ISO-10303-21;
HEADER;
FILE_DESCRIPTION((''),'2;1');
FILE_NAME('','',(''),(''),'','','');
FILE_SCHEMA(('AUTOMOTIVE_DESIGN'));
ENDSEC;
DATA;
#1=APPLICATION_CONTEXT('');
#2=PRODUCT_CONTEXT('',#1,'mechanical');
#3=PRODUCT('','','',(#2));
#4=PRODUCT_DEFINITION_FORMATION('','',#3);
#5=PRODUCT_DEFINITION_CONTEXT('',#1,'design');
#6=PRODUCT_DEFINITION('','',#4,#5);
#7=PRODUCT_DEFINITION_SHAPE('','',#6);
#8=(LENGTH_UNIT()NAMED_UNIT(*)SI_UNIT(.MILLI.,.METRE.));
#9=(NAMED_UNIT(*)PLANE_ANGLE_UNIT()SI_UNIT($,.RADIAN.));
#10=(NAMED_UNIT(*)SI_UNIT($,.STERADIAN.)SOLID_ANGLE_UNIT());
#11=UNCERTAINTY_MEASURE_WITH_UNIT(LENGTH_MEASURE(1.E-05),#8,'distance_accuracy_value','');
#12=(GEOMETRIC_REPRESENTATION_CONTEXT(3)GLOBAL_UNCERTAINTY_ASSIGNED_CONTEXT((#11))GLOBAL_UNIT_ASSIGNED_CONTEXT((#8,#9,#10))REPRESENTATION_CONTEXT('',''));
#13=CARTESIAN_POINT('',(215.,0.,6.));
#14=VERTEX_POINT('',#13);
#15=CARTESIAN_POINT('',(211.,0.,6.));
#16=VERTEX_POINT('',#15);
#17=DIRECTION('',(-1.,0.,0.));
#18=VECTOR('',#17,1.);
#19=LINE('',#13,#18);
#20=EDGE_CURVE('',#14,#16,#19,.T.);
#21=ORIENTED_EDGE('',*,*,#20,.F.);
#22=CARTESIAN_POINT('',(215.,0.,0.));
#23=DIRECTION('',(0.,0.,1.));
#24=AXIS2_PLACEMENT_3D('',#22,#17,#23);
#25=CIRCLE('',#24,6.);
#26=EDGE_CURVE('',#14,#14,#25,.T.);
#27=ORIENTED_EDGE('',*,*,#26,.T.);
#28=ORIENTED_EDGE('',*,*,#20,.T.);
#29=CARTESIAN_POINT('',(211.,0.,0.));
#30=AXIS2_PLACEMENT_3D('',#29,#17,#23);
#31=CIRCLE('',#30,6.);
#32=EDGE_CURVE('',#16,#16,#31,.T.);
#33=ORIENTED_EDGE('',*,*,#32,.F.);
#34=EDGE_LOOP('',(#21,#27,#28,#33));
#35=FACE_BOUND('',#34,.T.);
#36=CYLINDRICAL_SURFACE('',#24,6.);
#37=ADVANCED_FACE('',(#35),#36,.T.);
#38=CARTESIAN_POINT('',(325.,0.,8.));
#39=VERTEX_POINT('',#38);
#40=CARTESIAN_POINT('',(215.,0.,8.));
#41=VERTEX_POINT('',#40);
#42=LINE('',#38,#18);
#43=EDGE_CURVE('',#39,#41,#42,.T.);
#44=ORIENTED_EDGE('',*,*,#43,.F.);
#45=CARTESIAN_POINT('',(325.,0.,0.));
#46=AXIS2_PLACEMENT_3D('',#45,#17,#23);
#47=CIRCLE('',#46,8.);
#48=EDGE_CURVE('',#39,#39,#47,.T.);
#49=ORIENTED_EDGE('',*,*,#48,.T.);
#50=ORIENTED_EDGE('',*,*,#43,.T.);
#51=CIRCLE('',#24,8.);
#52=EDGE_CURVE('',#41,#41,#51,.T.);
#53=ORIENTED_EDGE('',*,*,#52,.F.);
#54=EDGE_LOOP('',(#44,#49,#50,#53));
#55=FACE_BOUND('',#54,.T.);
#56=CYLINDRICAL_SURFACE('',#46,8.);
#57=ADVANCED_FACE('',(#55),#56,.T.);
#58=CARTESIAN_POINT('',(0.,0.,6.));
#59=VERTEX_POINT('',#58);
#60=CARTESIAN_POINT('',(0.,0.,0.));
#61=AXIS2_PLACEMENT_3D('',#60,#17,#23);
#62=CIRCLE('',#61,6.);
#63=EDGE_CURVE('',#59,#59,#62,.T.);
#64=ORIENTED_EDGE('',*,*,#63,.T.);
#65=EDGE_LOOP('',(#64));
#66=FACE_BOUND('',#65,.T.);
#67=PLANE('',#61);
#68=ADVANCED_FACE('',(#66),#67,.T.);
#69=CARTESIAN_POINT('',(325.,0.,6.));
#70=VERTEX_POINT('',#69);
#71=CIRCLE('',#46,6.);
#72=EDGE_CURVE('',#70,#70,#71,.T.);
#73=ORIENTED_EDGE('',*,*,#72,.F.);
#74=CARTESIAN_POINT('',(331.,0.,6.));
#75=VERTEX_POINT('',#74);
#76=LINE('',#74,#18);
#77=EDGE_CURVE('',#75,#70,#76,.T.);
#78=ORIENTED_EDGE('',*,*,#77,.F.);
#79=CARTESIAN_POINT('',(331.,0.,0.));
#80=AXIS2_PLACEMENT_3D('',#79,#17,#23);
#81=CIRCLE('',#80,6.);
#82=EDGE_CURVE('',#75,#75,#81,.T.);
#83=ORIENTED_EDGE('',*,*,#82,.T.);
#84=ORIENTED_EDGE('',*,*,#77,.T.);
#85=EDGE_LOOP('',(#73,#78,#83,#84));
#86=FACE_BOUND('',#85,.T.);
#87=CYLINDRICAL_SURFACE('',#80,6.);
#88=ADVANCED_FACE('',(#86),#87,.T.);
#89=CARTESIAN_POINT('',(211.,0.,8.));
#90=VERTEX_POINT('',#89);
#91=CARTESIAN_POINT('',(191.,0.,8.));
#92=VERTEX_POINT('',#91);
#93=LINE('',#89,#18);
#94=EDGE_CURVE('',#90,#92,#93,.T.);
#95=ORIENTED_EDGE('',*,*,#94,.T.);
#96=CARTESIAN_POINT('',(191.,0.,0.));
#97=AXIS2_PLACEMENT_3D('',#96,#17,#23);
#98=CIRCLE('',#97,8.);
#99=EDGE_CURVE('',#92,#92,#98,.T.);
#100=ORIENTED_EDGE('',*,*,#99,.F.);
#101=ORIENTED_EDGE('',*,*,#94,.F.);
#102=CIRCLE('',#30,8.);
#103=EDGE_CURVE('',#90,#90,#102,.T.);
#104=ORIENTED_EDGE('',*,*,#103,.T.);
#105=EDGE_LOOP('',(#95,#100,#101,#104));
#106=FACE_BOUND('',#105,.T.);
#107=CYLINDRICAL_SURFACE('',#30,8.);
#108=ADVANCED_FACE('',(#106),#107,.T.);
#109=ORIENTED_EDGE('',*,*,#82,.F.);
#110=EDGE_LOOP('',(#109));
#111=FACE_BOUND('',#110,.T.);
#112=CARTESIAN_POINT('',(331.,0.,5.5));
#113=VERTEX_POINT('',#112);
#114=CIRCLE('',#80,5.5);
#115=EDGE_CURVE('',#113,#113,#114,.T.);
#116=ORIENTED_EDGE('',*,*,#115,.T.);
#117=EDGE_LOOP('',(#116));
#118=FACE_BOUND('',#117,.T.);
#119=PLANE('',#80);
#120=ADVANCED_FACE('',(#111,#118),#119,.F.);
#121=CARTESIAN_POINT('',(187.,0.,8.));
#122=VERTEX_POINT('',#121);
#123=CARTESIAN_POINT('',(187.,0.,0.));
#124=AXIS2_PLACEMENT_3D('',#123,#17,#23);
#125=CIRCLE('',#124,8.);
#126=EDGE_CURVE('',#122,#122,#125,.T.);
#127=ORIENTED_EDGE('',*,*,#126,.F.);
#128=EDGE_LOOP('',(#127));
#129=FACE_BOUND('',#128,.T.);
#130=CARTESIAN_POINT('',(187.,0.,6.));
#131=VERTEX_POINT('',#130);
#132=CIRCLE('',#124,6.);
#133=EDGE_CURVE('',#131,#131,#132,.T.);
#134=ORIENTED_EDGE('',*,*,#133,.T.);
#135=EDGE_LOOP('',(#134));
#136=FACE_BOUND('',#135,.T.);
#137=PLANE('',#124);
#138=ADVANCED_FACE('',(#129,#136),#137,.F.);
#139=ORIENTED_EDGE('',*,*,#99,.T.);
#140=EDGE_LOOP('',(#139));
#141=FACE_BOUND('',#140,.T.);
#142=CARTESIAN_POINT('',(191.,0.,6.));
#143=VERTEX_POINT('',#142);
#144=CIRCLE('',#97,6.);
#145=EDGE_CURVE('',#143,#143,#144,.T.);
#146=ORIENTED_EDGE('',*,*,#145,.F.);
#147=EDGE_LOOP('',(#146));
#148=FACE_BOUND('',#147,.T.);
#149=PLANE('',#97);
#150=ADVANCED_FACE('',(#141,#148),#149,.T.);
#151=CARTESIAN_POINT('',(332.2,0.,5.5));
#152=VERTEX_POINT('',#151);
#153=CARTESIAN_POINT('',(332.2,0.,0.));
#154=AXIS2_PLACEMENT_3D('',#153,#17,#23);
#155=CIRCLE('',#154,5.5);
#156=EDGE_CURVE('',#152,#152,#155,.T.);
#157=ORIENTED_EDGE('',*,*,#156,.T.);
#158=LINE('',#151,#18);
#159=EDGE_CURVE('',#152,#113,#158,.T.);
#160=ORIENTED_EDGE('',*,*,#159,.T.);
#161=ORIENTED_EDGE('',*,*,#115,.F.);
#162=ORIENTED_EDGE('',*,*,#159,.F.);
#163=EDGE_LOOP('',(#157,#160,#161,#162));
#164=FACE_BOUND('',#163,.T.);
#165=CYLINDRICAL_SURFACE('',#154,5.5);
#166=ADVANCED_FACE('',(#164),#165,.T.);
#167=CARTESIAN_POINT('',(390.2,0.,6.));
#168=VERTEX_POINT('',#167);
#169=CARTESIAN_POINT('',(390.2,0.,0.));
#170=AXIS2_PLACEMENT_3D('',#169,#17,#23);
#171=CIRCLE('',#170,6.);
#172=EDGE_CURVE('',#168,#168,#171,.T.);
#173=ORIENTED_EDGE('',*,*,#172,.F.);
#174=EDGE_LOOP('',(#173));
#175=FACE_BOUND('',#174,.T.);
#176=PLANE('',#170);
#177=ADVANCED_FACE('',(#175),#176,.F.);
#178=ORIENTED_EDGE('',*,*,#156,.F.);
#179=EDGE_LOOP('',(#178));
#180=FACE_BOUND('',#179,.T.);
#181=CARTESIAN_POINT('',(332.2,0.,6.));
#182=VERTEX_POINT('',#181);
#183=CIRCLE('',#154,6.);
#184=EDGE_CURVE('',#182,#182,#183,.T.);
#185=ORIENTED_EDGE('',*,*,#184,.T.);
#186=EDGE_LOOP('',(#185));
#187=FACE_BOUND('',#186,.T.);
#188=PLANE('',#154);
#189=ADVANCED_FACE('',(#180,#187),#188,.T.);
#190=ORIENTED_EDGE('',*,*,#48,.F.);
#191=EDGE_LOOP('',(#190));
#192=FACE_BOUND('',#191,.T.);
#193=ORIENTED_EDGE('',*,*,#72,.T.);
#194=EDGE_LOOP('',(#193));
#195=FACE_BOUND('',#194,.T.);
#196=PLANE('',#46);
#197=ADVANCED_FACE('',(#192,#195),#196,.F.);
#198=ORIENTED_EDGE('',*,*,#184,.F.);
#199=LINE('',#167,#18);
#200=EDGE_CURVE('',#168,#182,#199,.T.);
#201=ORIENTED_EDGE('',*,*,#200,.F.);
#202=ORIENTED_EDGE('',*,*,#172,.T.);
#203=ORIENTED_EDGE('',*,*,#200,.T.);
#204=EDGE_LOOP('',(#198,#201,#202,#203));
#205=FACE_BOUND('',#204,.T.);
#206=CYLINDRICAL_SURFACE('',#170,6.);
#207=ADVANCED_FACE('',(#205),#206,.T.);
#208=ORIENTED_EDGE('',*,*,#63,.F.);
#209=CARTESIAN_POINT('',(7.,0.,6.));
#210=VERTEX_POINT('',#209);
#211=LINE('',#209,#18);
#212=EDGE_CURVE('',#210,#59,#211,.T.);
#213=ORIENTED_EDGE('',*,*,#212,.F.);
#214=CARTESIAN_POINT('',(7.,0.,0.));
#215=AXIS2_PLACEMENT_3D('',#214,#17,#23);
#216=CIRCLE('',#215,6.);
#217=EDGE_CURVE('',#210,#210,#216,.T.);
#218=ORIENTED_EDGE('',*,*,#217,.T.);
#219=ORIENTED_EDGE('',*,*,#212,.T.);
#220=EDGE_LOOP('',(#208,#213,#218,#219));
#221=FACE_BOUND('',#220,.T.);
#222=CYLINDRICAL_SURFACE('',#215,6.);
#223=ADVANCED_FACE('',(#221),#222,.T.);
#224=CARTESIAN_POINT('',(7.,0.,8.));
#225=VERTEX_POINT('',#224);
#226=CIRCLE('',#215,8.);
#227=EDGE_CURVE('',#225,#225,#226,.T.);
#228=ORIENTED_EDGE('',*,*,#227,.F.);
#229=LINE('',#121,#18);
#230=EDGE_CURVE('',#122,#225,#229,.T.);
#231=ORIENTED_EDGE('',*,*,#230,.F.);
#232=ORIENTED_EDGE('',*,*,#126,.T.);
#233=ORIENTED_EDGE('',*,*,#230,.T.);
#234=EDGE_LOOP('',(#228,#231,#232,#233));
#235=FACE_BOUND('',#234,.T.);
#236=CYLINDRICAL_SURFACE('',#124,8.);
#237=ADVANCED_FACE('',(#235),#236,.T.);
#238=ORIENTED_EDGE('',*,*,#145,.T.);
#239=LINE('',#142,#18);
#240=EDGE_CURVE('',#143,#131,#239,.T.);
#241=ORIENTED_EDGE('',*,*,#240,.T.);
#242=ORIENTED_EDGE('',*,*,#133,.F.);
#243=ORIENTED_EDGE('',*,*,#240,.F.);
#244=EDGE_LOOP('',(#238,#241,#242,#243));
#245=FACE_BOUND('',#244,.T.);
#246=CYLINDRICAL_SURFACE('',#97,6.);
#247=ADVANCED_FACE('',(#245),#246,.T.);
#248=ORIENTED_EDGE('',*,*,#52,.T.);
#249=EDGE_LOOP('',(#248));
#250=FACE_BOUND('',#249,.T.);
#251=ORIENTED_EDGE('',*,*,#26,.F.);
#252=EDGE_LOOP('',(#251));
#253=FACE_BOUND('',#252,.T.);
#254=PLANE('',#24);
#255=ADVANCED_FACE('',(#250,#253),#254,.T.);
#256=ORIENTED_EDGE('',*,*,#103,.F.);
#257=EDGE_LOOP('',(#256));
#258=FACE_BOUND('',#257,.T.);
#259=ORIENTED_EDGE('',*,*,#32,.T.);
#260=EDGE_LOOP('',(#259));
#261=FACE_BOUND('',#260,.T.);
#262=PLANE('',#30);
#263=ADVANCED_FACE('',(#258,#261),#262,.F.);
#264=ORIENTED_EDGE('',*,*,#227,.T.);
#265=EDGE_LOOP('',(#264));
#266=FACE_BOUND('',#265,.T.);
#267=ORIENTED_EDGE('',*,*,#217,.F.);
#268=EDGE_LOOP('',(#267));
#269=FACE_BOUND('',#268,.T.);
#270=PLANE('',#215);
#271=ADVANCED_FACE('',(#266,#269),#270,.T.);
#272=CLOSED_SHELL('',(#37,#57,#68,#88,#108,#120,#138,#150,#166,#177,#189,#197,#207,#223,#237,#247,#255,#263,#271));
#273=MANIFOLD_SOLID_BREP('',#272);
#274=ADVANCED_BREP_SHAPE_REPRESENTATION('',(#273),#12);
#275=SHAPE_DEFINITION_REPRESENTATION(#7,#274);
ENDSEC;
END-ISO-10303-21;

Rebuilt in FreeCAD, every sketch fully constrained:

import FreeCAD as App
import Part
import Sketcher

V = App.Vector
Q = App.Units.Quantity

doc = App.newDocument("Part")
params = doc.addObject("Spreadsheet::Sheet", "Params")
for row, (alias, value) in enumerate([
    ("sketch1_width", "58 mm"),
    ("sketch1_width2", "6 mm"),
    ("sketch1_width3", "110 mm"),
    ("sketch1_width4", "4 mm"),
    ("sketch1_width5", "20 mm"),
    ("revolution_angle", "360 deg"),
], start=1):
    params.set(f"A{row}", alias)
    params.set(f"B{row}", "=" + value)
    params.setAlias(f"B{row}", alias)

body = doc.addObject("PartDesign::Body", "Body")

sketch1 = doc.addObject("Sketcher::SketchObject", "Sketch")
body.addObject(sketch1)
sketch1.AttachmentSupport = (doc.XZ_Plane, [""])
sketch1.MapMode = "FlatFace"
sketch1.addGeometry(Part.LineSegment(V(0, 6, 0), V(0, 0, 0)), False)
sketch1.addGeometry(Part.LineSegment(V(0, 0, 0), V(390.2, 0, 0)), False)
sketch1.addGeometry(Part.LineSegment(V(390.2, 0, 0), V(390.2, 6, 0)), False)
sketch1.addGeometry(Part.LineSegment(V(390.2, 6, 0), V(332.2, 6, 0)), False)
sketch1.addGeometry(Part.LineSegment(V(332.2, 6, 0), V(332.2, 5.5, 0)), False)
sketch1.addGeometry(Part.LineSegment(V(332.2, 5.5, 0), V(331, 5.5, 0)), False)
sketch1.addGeometry(Part.LineSegment(V(331, 5.5, 0), V(331, 6, 0)), False)
sketch1.addGeometry(Part.LineSegment(V(331, 6, 0), V(325, 6, 0)), False)
sketch1.addGeometry(Part.LineSegment(V(325, 6, 0), V(325, 8, 0)), False)
sketch1.addGeometry(Part.LineSegment(V(325, 8, 0), V(215, 8, 0)), False)
sketch1.addGeometry(Part.LineSegment(V(215, 8, 0), V(215, 6, 0)), False)
sketch1.addGeometry(Part.LineSegment(V(215, 6, 0), V(211, 6, 0)), False)
sketch1.addGeometry(Part.LineSegment(V(211, 6, 0), V(211, 8, 0)), False)
sketch1.addGeometry(Part.LineSegment(V(211, 8, 0), V(191, 8, 0)), False)
sketch1.addGeometry(Part.LineSegment(V(191, 8, 0), V(191, 6, 0)), False)
sketch1.addGeometry(Part.LineSegment(V(191, 6, 0), V(187, 6, 0)), False)
sketch1.addGeometry(Part.LineSegment(V(187, 6, 0), V(187, 8, 0)), False)
sketch1.addGeometry(Part.LineSegment(V(187, 8, 0), V(7, 8, 0)), False)
sketch1.addGeometry(Part.LineSegment(V(7, 8, 0), V(7, 6, 0)), False)
sketch1.addGeometry(Part.LineSegment(V(7, 6, 0), V(0, 6, 0)), False)
sketch1.addConstraint(Sketcher.Constraint("Coincident", 0, 2, 1, 1))
sketch1.addConstraint(Sketcher.Constraint("Coincident", 1, 2, 2, 1))
sketch1.addConstraint(Sketcher.Constraint("Coincident", 2, 2, 3, 1))
sketch1.addConstraint(Sketcher.Constraint("Coincident", 3, 2, 4, 1))
sketch1.addConstraint(Sketcher.Constraint("Coincident", 4, 2, 5, 1))
sketch1.addConstraint(Sketcher.Constraint("Coincident", 5, 2, 6, 1))
sketch1.addConstraint(Sketcher.Constraint("Coincident", 6, 2, 7, 1))
sketch1.addConstraint(Sketcher.Constraint("Coincident", 7, 2, 8, 1))
sketch1.addConstraint(Sketcher.Constraint("Coincident", 8, 2, 9, 1))
sketch1.addConstraint(Sketcher.Constraint("Coincident", 9, 2, 10, 1))
sketch1.addConstraint(Sketcher.Constraint("Coincident", 10, 2, 11, 1))
sketch1.addConstraint(Sketcher.Constraint("Coincident", 11, 2, 12, 1))
sketch1.addConstraint(Sketcher.Constraint("Coincident", 12, 2, 13, 1))
sketch1.addConstraint(Sketcher.Constraint("Coincident", 13, 2, 14, 1))
sketch1.addConstraint(Sketcher.Constraint("Coincident", 14, 2, 15, 1))
sketch1.addConstraint(Sketcher.Constraint("Coincident", 15, 2, 16, 1))
sketch1.addConstraint(Sketcher.Constraint("Coincident", 16, 2, 17, 1))
sketch1.addConstraint(Sketcher.Constraint("Coincident", 17, 2, 18, 1))
sketch1.addConstraint(Sketcher.Constraint("Coincident", 18, 2, 19, 1))
sketch1.addConstraint(Sketcher.Constraint("Coincident", 19, 2, 0, 1))
sketch1.addConstraint(Sketcher.Constraint("Vertical", 0))
sketch1.addConstraint(Sketcher.Constraint("Horizontal", 1))
sketch1.addConstraint(Sketcher.Constraint("Vertical", 2))
sketch1.addConstraint(Sketcher.Constraint("Horizontal", 3))
sketch1.addConstraint(Sketcher.Constraint("Vertical", 4))
sketch1.addConstraint(Sketcher.Constraint("Horizontal", 5))
sketch1.addConstraint(Sketcher.Constraint("Vertical", 6))
sketch1.addConstraint(Sketcher.Constraint("Horizontal", 7))
sketch1.addConstraint(Sketcher.Constraint("Vertical", 8))
sketch1.addConstraint(Sketcher.Constraint("Horizontal", 9))
sketch1.addConstraint(Sketcher.Constraint("Vertical", 10))
sketch1.addConstraint(Sketcher.Constraint("Horizontal", 11))
sketch1.addConstraint(Sketcher.Constraint("Vertical", 12))
sketch1.addConstraint(Sketcher.Constraint("Horizontal", 13))
sketch1.addConstraint(Sketcher.Constraint("Vertical", 14))
sketch1.addConstraint(Sketcher.Constraint("Horizontal", 15))
sketch1.addConstraint(Sketcher.Constraint("Vertical", 16))
sketch1.addConstraint(Sketcher.Constraint("Horizontal", 17))
sketch1.addConstraint(Sketcher.Constraint("Vertical", 18))
sketch1.addConstraint(Sketcher.Constraint("Horizontal", 19))
sketch1.addConstraint(Sketcher.Constraint("Coincident", 0, 2, -1, 1))
sketch1.addConstraint(Sketcher.Constraint("Horizontal", 3, 2, 6, 2))
sketch1.addConstraint(Sketcher.Constraint("Horizontal", 7, 2, 10, 2))
sketch1.addConstraint(Sketcher.Constraint("Horizontal", 9, 2, 12, 2))
sketch1.addConstraint(Sketcher.Constraint("Horizontal", 11, 2, 14, 2))
sketch1.addConstraint(Sketcher.Constraint("Horizontal", 13, 2, 16, 2))
sketch1.addConstraint(Sketcher.Constraint("Horizontal", 15, 2, 18, 2))
sketch1.addConstraint(Sketcher.Constraint("Equal", 11, 15))
sketch1.addConstraint(Sketcher.Constraint("Equal", 7, 0))
sketch1.addConstraint(Sketcher.Constraint("DistanceX", 3, 2, 3, 1, Q("58 mm")))
sketch1.addConstraint(Sketcher.Constraint("DistanceX", 7, 2, 7, 1, Q("6 mm")))
sketch1.addConstraint(Sketcher.Constraint("DistanceX", 9, 2, 9, 1, Q("110 mm")))
sketch1.addConstraint(Sketcher.Constraint("DistanceX", 11, 2, 11, 1, Q("4 mm")))
sketch1.addConstraint(Sketcher.Constraint("DistanceX", 13, 2, 13, 1, Q("20 mm")))
sketch1.addConstraint(Sketcher.Constraint("DistanceX", 17, 2, 17, 1, Q("180 mm")))
sketch1.addConstraint(Sketcher.Constraint("DistanceX", 19, 2, 19, 1, Q("7 mm")))
sketch1.addConstraint(Sketcher.Constraint("DistanceY", 8, 1, 8, 2, Q("2 mm")))
sketch1.addConstraint(Sketcher.Constraint("DistanceX", 1, 1, 1, 2, Q("390.2 mm")))
sketch1.addConstraint(Sketcher.Constraint("DistanceY", 4, 2, 4, 1, Q("0.5 mm")))
sketch1.setExpression("Constraints[49]", "Params.sketch1_width")
sketch1.setExpression("Constraints[50]", "Params.sketch1_width2")
sketch1.setExpression("Constraints[51]", "Params.sketch1_width3")
sketch1.setExpression("Constraints[52]", "Params.sketch1_width4")
sketch1.setExpression("Constraints[53]", "Params.sketch1_width5")
revolution = doc.addObject("PartDesign::Revolution", "Revolution")
body.addObject(revolution)
revolution.Profile = sketch1
revolution.ReferenceAxis = (sketch1, ["H_Axis"])
revolution.setExpression("Angle", "Params.revolution_angle")

doc.recompute()
